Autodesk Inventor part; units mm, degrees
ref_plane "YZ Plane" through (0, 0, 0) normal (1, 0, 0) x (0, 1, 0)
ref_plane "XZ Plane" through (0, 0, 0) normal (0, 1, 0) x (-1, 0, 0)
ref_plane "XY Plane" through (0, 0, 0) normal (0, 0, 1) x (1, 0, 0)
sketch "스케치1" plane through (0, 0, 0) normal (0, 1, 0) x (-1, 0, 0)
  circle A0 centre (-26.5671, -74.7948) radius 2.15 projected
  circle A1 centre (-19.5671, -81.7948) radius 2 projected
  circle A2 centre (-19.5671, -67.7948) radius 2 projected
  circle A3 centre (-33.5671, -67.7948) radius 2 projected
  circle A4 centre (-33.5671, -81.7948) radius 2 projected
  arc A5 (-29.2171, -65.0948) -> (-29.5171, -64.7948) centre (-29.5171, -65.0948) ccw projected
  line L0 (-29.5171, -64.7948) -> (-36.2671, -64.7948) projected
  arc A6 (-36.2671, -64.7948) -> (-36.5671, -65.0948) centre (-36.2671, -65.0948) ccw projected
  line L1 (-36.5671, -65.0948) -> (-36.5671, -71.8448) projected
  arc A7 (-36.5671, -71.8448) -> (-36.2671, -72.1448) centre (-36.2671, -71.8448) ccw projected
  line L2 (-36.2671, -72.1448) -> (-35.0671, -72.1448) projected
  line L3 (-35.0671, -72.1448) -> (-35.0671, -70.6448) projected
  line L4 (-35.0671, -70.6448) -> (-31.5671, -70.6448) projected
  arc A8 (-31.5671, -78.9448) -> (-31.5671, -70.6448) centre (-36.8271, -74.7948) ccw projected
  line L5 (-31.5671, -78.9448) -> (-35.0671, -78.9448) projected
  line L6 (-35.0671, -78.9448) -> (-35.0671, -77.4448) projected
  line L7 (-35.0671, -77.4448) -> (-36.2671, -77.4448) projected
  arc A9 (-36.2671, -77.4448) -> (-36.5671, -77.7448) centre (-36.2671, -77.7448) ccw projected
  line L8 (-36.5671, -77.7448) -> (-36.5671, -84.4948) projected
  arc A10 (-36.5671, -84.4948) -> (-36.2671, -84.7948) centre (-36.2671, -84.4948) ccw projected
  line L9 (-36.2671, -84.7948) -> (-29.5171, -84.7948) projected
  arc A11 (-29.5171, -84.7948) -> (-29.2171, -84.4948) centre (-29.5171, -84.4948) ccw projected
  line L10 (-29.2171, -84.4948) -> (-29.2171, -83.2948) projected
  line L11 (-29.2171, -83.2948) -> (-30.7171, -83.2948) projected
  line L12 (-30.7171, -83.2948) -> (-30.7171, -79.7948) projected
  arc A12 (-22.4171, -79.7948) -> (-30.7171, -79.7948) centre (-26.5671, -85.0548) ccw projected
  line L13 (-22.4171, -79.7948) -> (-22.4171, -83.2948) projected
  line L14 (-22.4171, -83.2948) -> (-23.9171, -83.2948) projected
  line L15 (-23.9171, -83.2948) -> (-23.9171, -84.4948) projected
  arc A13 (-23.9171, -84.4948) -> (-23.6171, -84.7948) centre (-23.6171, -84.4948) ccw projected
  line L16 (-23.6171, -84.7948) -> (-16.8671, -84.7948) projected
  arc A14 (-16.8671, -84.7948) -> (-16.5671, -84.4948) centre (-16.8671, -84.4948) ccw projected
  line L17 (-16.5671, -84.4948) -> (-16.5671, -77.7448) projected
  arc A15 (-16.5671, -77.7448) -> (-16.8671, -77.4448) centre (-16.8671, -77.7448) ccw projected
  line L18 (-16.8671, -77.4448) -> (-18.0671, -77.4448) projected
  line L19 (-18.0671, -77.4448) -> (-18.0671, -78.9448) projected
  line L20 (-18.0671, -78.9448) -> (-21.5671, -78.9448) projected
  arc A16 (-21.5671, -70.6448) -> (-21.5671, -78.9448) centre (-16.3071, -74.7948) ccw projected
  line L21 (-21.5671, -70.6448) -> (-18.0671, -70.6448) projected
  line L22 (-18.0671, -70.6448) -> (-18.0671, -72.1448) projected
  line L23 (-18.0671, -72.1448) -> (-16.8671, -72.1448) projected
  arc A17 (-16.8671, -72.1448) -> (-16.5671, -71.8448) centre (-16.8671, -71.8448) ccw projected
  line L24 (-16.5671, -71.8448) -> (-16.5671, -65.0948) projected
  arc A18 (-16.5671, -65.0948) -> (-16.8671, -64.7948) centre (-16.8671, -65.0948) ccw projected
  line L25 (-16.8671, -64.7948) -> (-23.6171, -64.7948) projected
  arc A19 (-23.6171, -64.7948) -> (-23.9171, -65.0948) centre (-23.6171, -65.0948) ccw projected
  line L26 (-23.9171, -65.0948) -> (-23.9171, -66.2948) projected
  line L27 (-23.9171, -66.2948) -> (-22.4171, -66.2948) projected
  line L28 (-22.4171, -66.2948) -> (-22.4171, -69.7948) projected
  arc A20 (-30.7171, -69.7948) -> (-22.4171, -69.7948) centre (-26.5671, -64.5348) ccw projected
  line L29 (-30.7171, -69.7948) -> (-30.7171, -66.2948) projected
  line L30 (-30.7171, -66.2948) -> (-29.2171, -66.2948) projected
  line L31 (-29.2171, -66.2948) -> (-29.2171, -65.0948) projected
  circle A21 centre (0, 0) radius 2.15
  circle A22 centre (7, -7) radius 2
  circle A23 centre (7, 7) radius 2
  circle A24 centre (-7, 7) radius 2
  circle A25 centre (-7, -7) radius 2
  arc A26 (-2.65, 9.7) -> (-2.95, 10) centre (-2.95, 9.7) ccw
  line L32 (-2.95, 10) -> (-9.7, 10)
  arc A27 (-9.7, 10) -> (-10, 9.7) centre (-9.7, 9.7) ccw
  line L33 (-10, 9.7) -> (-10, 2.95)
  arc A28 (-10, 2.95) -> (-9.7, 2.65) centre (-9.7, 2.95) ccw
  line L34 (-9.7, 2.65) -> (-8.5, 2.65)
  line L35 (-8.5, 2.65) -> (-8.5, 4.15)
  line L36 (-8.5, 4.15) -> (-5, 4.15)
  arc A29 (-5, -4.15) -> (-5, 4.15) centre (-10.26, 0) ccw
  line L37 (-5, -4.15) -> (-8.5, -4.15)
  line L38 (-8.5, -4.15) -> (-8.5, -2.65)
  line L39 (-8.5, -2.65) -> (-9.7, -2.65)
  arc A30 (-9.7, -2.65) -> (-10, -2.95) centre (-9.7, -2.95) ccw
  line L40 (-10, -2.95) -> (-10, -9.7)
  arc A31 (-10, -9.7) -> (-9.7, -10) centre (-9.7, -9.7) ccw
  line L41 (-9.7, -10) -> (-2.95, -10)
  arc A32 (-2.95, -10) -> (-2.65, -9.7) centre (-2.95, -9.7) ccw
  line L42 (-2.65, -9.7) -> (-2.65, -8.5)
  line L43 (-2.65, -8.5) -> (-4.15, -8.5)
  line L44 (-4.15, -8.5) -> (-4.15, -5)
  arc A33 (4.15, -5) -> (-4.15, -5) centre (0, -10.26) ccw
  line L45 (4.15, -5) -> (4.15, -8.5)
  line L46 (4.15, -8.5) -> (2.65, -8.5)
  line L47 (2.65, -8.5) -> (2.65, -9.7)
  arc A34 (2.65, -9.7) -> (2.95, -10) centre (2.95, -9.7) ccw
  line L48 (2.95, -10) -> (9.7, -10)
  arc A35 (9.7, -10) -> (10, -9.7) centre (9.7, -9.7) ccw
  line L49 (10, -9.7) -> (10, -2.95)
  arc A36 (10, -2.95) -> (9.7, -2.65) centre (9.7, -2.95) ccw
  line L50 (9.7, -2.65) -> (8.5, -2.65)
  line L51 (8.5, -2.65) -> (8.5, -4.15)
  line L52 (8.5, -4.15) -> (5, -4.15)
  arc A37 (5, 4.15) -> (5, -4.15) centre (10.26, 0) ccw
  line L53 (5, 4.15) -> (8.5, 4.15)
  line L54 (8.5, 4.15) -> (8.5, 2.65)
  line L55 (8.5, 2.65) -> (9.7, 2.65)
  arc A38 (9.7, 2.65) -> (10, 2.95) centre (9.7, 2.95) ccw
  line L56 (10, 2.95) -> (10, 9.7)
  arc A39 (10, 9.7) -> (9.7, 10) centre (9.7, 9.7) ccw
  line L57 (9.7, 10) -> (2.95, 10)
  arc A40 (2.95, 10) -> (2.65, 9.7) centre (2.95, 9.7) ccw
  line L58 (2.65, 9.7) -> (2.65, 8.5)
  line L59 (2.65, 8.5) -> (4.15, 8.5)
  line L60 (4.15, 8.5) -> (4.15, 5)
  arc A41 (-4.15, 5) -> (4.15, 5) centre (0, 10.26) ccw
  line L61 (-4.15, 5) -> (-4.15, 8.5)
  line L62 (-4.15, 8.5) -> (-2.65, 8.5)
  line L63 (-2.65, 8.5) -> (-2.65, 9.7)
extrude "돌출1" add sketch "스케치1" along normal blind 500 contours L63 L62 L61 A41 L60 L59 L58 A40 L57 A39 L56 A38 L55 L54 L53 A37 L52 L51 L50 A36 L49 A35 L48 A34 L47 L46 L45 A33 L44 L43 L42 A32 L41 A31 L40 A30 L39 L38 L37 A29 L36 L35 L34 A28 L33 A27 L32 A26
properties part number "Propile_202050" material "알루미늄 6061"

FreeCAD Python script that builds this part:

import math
import FreeCAD as App
import Part
import Sketcher

V = App.Vector
Q = App.Units.Quantity

doc = App.newDocument("Part")
body = doc.addObject("PartDesign::Body", "Body")

# Sketch on XZ plane
sketch1 = doc.addObject("Sketcher::SketchObject", "Sketch")
body.addObject(sketch1)
sketch1.AttachmentSupport = (doc.XZ_Plane, [""])
sketch1.MapMode = "FlatFace"
sketch1.addGeometry([
    Part.LineSegment(V(2.65, 8.5, 0), V(2.65, 9.7, 0)),  # 0
    Part.ArcOfCircle(Part.Circle(V(2.95, 9.7, 0), V(0, 0, 1), 0.3), math.radians(90), math.radians(180)),  # 1
    Part.LineSegment(V(2.95, 10, 0), V(9.7, 10, 0)),  # 2
    Part.ArcOfCircle(Part.Circle(V(9.7, 9.7, 0), V(0, 0, 1), 0.3), math.radians(0), math.radians(90)),  # 3
    Part.LineSegment(V(10, 9.7, 0), V(10, 2.95, 0)),  # 4
    Part.ArcOfCircle(Part.Circle(V(9.7, 2.95, 0), V(0, 0, 1), 0.3), math.radians(-90), math.radians(0)),  # 5
    Part.LineSegment(V(9.7, 2.65, 0), V(8.5, 2.65, 0)),  # 6
    Part.LineSegment(V(8.5, 2.65, 0), V(8.5, 4.15, 0)),  # 7
    Part.LineSegment(V(8.5, 4.15, 0), V(5, 4.15, 0)),  # 8
    Part.ArcOfCircle(Part.Circle(V(10.26, 0, 0), V(0, 0, 1), 6.7), math.radians(142), math.radians(218)),  # 9
    Part.LineSegment(V(5, -4.15, 0), V(8.5, -4.15, 0)),  # 10
    Part.LineSegment(V(8.5, -4.15, 0), V(8.5, -2.65, 0)),  # 11
    Part.LineSegment(V(8.5, -2.65, 0), V(9.7, -2.65, 0)),  # 12
    Part.ArcOfCircle(Part.Circle(V(9.7, -2.95, 0), V(0, 0, 1), 0.3), math.radians(0), math.radians(90)),  # 13
    Part.LineSegment(V(10, -2.95, 0), V(10, -9.7, 0)),  # 14
    Part.ArcOfCircle(Part.Circle(V(9.7, -9.7, 0), V(0, 0, 1), 0.3), math.radians(-90), math.radians(0)),  # 15
    Part.LineSegment(V(9.7, -10, 0), V(2.95, -10, 0)),  # 16
    Part.ArcOfCircle(Part.Circle(V(2.95, -9.7, 0), V(0, 0, 1), 0.3), math.radians(180), math.radians(270)),  # 17
    Part.LineSegment(V(2.65, -9.7, 0), V(2.65, -8.5, 0)),  # 18
    Part.LineSegment(V(2.65, -8.5, 0), V(4.15, -8.5, 0)),  # 19
    Part.LineSegment(V(4.15, -8.5, 0), V(4.15, -5, 0)),  # 20
    Part.ArcOfCircle(Part.Circle(V(0, -10.26, 0), V(0, 0, 1), 6.7), math.radians(52), math.radians(128)),  # 21
    Part.LineSegment(V(-4.15, -5, 0), V(-4.15, -8.5, 0)),  # 22
    Part.LineSegment(V(-4.15, -8.5, 0), V(-2.65, -8.5, 0)),  # 23
    Part.LineSegment(V(-2.65, -8.5, 0), V(-2.65, -9.7, 0)),  # 24
    Part.ArcOfCircle(Part.Circle(V(-2.95, -9.7, 0), V(0, 0, 1), 0.3), math.radians(-90), math.radians(0)),  # 25
    Part.LineSegment(V(-2.95, -10, 0), V(-9.7, -10, 0)),  # 26
    Part.ArcOfCircle(Part.Circle(V(-9.7, -9.7, 0), V(0, 0, 1), 0.3), math.radians(180), math.radians(270)),  # 27
    Part.LineSegment(V(-10, -9.7, 0), V(-10, -2.95, 0)),  # 28
    Part.ArcOfCircle(Part.Circle(V(-9.7, -2.95, 0), V(0, 0, 1), 0.3), math.radians(90), math.radians(180)),  # 29
    Part.LineSegment(V(-9.7, -2.65, 0), V(-8.5, -2.65, 0)),  # 30
    Part.LineSegment(V(-8.5, -2.65, 0), V(-8.5, -4.15, 0)),  # 31
    Part.LineSegment(V(-8.5, -4.15, 0), V(-5, -4.15, 0)),  # 32
    Part.ArcOfCircle(Part.Circle(V(-10.26, 0, 0), V(0, 0, 1), 6.7), math.radians(-38), math.radians(38)),  # 33
    Part.LineSegment(V(-5, 4.15, 0), V(-8.5, 4.15, 0)),  # 34
    Part.LineSegment(V(-8.5, 4.15, 0), V(-8.5, 2.65, 0)),  # 35
    Part.LineSegment(V(-8.5, 2.65, 0), V(-9.7, 2.65, 0)),  # 36
    Part.ArcOfCircle(Part.Circle(V(-9.7, 2.95, 0), V(0, 0, 1), 0.3), math.radians(180), math.radians(270)),  # 37
    Part.LineSegment(V(-10, 2.95, 0), V(-10, 9.7, 0)),  # 38
    Part.ArcOfCircle(Part.Circle(V(-9.7, 9.7, 0), V(0, 0, 1), 0.3), math.radians(90), math.radians(180)),  # 39
    Part.LineSegment(V(-9.7, 10, 0), V(-2.95, 10, 0)),  # 40
    Part.ArcOfCircle(Part.Circle(V(-2.95, 9.7, 0), V(0, 0, 1), 0.3), math.radians(0), math.radians(90)),  # 41
    Part.LineSegment(V(-2.65, 9.7, 0), V(-2.65, 8.5, 0)),  # 42
    Part.LineSegment(V(-2.65, 8.5, 0), V(-4.15, 8.5, 0)),  # 43
    Part.LineSegment(V(-4.15, 8.5, 0), V(-4.15, 5, 0)),  # 44
    Part.ArcOfCircle(Part.Circle(V(0, 10.26, 0), V(0, 0, 1), 6.7), math.radians(-128), math.radians(-52)),  # 45
    Part.LineSegment(V(4.15, 5, 0), V(4.15, 8.5, 0)),  # 46
    Part.LineSegment(V(4.15, 8.5, 0), V(2.65, 8.5, 0)),  # 47
    Part.Circle(V(7, -7, 0), V(0, 0, 1), 2),  # 48
    Part.Circle(V(7, 7, 0), V(0, 0, 1), 2),  # 49
    Part.Circle(V(-7, -7, 0), V(0, 0, 1), 2),  # 50
    Part.Circle(V(0, 0, 0), V(0, 0, 1), 2.15),  # 51
    Part.Circle(V(-7, 7, 0), V(0, 0, 1), 2),  # 52
], False)
sketch1.addConstraint([
    Sketcher.Constraint("Tangent", 0, 2, 1, 2),
    Sketcher.Constraint("Tangent", 1, 1, 2, 1),
    Sketcher.Constraint("Tangent", 2, 2, 3, 2),
    Sketcher.Constraint("Tangent", 3, 1, 4, 1),
    Sketcher.Constraint("Tangent", 4, 2, 5, 2),
    Sketcher.Constraint("Tangent", 5, 1, 6, 1),
    Sketcher.Constraint("Coincident", 6, 2, 7, 1),
    Sketcher.Constraint("Coincident", 7, 2, 8, 1),
    Sketcher.Constraint("Coincident", 8, 2, 9, 1),
    Sketcher.Constraint("Coincident", 9, 2, 10, 1),
    Sketcher.Constraint("Coincident", 10, 2, 11, 1),
    Sketcher.Constraint("Coincident", 11, 2, 12, 1),
    Sketcher.Constraint("Tangent", 12, 2, 13, 2),
    Sketcher.Constraint("Tangent", 13, 1, 14, 1),
    Sketcher.Constraint("Tangent", 14, 2, 15, 2),
    Sketcher.Constraint("Tangent", 15, 1, 16, 1),
    Sketcher.Constraint("Tangent", 16, 2, 17, 2),
    Sketcher.Constraint("Tangent", 17, 1, 18, 1),
    Sketcher.Constraint("Coincident", 18, 2, 19, 1),
    Sketcher.Constraint("Coincident", 19, 2, 20, 1),
    Sketcher.Constraint("Coincident", 20, 2, 21, 1),
    Sketcher.Constraint("Coincident", 21, 2, 22, 1),
    Sketcher.Constraint("Coincident", 22, 2, 23, 1),
    Sketcher.Constraint("Coincident", 23, 2, 24, 1),
    Sketcher.Constraint("Tangent", 24, 2, 25, 2),
    Sketcher.Constraint("Tangent", 25, 1, 26, 1),
    Sketcher.Constraint("Tangent", 26, 2, 27, 2),
    Sketcher.Constraint("Tangent", 27, 1, 28, 1),
    Sketcher.Constraint("Tangent", 28, 2, 29, 2),
    Sketcher.Constraint("Tangent", 29, 1, 30, 1),
    Sketcher.Constraint("Coincident", 30, 2, 31, 1),
    Sketcher.Constraint("Coincident", 31, 2, 32, 1),
    Sketcher.Constraint("Coincident", 32, 2, 33, 1),
    Sketcher.Constraint("Coincident", 33, 2, 34, 1),
    Sketcher.Constraint("Coincident", 34, 2, 35, 1),
    Sketcher.Constraint("Coincident", 35, 2, 36, 1),
    Sketcher.Constraint("Tangent", 36, 2, 37, 2),
    Sketcher.Constraint("Tangent", 37, 1, 38, 1),
    Sketcher.Constraint("Tangent", 38, 2, 39, 2),
    Sketcher.Constraint("Tangent", 39, 1, 40, 1),
    Sketcher.Constraint("Tangent", 40, 2, 41, 2),
    Sketcher.Constraint("Tangent", 41, 1, 42, 1),
    Sketcher.Constraint("Coincident", 42, 2, 43, 1),
    Sketcher.Constraint("Coincident", 43, 2, 44, 1),
    Sketcher.Constraint("Coincident", 44, 2, 45, 1),
    Sketcher.Constraint("Coincident", 45, 2, 46, 1),
    Sketcher.Constraint("Coincident", 46, 2, 47, 1),
    Sketcher.Constraint("Coincident", 47, 2, 0, 1),
    Sketcher.Constraint("Vertical", 0),
    Sketcher.Constraint("Horizontal", 2),
    Sketcher.Constraint("Vertical", 4),
    Sketcher.Constraint("Horizontal", 6),
    Sketcher.Constraint("Vertical", 7),
    Sketcher.Constraint("Horizontal", 8),
    Sketcher.Constraint("Horizontal", 10),
    Sketcher.Constraint("Vertical", 11),
    Sketcher.Constraint("Horizontal", 12),
    Sketcher.Constraint("Vertical", 14),
    Sketcher.Constraint("Horizontal", 16),
    Sketcher.Constraint("Vertical", 18),
    Sketcher.Constraint("Horizontal", 19),
    Sketcher.Constraint("Vertical", 20),
    Sketcher.Constraint("Vertical", 22),
    Sketcher.Constraint("Horizontal", 23),
    Sketcher.Constraint("Vertical", 24),
    Sketcher.Constraint("Horizontal", 26),
    Sketcher.Constraint("Vertical", 28),
    Sketcher.Constraint("Horizontal", 30),
    Sketcher.Constraint("Vertical", 31),
    Sketcher.Constraint("Horizontal", 32),
    Sketcher.Constraint("Horizontal", 34),
    Sketcher.Constraint("Vertical", 35),
    Sketcher.Constraint("Horizontal", 36),
    Sketcher.Constraint("Vertical", 38),
    Sketcher.Constraint("Horizontal", 40),
    Sketcher.Constraint("Vertical", 42),
    Sketcher.Constraint("Horizontal", 43),
    Sketcher.Constraint("Vertical", 44),
    Sketcher.Constraint("Vertical", 46),
    Sketcher.Constraint("Horizontal", 47),
    Sketcher.Constraint("Coincident", 51, 3, -1, 1),
    Sketcher.Constraint("Equal", 1, 3),
    Sketcher.Constraint("Equal", 3, 5),
    Sketcher.Constraint("Equal", 5, 13),
    Sketcher.Constraint("Equal", 13, 15),
    Sketcher.Constraint("Equal", 15, 17),
    Sketcher.Constraint("Equal", 9, 21),
    Sketcher.Constraint("Equal", 17, 25),
    Sketcher.Constraint("Equal", 25, 27),
    Sketcher.Constraint("Equal", 27, 29),
    Sketcher.Constraint("Equal", 21, 33),
    Sketcher.Constraint("Equal", 29, 37),
    Sketcher.Constraint("Equal", 37, 39),
    Sketcher.Constraint("Equal", 39, 41),
    Sketcher.Constraint("Equal", 33, 45),
    Sketcher.Constraint("Equal", 48, 49),
    Sketcher.Constraint("Equal", 49, 50),
    Sketcher.Constraint("Equal", 50, 52),
    Sketcher.Constraint("Symmetric", 1, 3, 25, 3, -1, 1),
    Sketcher.Constraint("Symmetric", 5, 3, 29, 3, -1, 1),
    Sketcher.Constraint("Symmetric", 9, 3, 33, 3, -1, 1),
    Sketcher.Constraint("Symmetric", 13, 3, 37, 3, -1, 1),
    Sketcher.Constraint("Symmetric", 17, 3, 41, 3, -1, 1),
    Sketcher.Constraint("Symmetric", 21, 3, 45, 3, -1, 1),
    Sketcher.Constraint("Symmetric", 49, 3, 50, 3, -1, 1),
    Sketcher.Constraint("Symmetric", 48, 3, 52, 3, -1, 1),
    Sketcher.Constraint("Symmetric", 7, 2, 31, 2, -1, 1),
    Sketcher.Constraint("Symmetric", 10, 2, 34, 2, -1, 1),
    Sketcher.Constraint("Symmetric", 19, 2, 43, 2, -1, 1),
    Sketcher.Constraint("Symmetric", 22, 2, 46, 2, -1, 1),
    Sketcher.Constraint("Symmetric", 17, 3, 25, 3, -2),
    Sketcher.Constraint("Symmetric", 13, 3, 29, 3, -2),
    Sketcher.Constraint("Symmetric", 48, 3, 50, 3, -2),
    Sketcher.Constraint("Symmetric", 20, 2, 21, 2, -2),
    Sketcher.Constraint("Symmetric", 10, 2, 31, 2, -2),
    Sketcher.Constraint("PointOnObject", 9, 3, -1),
    Sketcher.Constraint("Horizontal", 19, 2, 22, 2),
    Sketcher.Constraint("Equal", 36, 0),
    Sketcher.Constraint("Equal", 40, 4),
    Sketcher.Constraint("Equal", 47, 7),
    Sketcher.Constraint("Equal", 34, 20),
    Sketcher.Constraint("Diameter", 48, Q("4 mm")),
    Sketcher.Constraint("Diameter", 51, Q("4.3 mm")),
    Sketcher.Constraint("Radius", 1, Q("0.3 mm")),
    Sketcher.Constraint("Radius", 9, Q("6.7 mm")),
    Sketcher.Constraint("DistanceX", 6, 2, 6, 1, Q("1.2 mm")),
    Sketcher.Constraint("DistanceX", 8, 2, 8, 1, Q("3.5 mm")),
    Sketcher.Constraint("DistanceX", 19, 1, 19, 2, Q("1.5 mm")),
    Sketcher.Constraint("DistanceX", -1, 1, 48, 3, Q("7 mm")),
    Sketcher.Constraint("DistanceY", 48, 3, -1, 1, Q("7 mm")),
    Sketcher.Constraint("DistanceY", -1, 1, 1, 1, Q("10 mm")),
    Sketcher.Constraint("DistanceX", -1, 1, 3, 1, Q("10 mm")),
    Sketcher.Constraint("DistanceX", 2, 1, 2, 2, Q("6.75 mm")),
])
pad1 = doc.addObject("PartDesign::Pad", "Pad")
body.addObject(pad1)
pad1.Profile = sketch1
pad1.Length = 500
pad1.Reversed = True

doc.recompute()
